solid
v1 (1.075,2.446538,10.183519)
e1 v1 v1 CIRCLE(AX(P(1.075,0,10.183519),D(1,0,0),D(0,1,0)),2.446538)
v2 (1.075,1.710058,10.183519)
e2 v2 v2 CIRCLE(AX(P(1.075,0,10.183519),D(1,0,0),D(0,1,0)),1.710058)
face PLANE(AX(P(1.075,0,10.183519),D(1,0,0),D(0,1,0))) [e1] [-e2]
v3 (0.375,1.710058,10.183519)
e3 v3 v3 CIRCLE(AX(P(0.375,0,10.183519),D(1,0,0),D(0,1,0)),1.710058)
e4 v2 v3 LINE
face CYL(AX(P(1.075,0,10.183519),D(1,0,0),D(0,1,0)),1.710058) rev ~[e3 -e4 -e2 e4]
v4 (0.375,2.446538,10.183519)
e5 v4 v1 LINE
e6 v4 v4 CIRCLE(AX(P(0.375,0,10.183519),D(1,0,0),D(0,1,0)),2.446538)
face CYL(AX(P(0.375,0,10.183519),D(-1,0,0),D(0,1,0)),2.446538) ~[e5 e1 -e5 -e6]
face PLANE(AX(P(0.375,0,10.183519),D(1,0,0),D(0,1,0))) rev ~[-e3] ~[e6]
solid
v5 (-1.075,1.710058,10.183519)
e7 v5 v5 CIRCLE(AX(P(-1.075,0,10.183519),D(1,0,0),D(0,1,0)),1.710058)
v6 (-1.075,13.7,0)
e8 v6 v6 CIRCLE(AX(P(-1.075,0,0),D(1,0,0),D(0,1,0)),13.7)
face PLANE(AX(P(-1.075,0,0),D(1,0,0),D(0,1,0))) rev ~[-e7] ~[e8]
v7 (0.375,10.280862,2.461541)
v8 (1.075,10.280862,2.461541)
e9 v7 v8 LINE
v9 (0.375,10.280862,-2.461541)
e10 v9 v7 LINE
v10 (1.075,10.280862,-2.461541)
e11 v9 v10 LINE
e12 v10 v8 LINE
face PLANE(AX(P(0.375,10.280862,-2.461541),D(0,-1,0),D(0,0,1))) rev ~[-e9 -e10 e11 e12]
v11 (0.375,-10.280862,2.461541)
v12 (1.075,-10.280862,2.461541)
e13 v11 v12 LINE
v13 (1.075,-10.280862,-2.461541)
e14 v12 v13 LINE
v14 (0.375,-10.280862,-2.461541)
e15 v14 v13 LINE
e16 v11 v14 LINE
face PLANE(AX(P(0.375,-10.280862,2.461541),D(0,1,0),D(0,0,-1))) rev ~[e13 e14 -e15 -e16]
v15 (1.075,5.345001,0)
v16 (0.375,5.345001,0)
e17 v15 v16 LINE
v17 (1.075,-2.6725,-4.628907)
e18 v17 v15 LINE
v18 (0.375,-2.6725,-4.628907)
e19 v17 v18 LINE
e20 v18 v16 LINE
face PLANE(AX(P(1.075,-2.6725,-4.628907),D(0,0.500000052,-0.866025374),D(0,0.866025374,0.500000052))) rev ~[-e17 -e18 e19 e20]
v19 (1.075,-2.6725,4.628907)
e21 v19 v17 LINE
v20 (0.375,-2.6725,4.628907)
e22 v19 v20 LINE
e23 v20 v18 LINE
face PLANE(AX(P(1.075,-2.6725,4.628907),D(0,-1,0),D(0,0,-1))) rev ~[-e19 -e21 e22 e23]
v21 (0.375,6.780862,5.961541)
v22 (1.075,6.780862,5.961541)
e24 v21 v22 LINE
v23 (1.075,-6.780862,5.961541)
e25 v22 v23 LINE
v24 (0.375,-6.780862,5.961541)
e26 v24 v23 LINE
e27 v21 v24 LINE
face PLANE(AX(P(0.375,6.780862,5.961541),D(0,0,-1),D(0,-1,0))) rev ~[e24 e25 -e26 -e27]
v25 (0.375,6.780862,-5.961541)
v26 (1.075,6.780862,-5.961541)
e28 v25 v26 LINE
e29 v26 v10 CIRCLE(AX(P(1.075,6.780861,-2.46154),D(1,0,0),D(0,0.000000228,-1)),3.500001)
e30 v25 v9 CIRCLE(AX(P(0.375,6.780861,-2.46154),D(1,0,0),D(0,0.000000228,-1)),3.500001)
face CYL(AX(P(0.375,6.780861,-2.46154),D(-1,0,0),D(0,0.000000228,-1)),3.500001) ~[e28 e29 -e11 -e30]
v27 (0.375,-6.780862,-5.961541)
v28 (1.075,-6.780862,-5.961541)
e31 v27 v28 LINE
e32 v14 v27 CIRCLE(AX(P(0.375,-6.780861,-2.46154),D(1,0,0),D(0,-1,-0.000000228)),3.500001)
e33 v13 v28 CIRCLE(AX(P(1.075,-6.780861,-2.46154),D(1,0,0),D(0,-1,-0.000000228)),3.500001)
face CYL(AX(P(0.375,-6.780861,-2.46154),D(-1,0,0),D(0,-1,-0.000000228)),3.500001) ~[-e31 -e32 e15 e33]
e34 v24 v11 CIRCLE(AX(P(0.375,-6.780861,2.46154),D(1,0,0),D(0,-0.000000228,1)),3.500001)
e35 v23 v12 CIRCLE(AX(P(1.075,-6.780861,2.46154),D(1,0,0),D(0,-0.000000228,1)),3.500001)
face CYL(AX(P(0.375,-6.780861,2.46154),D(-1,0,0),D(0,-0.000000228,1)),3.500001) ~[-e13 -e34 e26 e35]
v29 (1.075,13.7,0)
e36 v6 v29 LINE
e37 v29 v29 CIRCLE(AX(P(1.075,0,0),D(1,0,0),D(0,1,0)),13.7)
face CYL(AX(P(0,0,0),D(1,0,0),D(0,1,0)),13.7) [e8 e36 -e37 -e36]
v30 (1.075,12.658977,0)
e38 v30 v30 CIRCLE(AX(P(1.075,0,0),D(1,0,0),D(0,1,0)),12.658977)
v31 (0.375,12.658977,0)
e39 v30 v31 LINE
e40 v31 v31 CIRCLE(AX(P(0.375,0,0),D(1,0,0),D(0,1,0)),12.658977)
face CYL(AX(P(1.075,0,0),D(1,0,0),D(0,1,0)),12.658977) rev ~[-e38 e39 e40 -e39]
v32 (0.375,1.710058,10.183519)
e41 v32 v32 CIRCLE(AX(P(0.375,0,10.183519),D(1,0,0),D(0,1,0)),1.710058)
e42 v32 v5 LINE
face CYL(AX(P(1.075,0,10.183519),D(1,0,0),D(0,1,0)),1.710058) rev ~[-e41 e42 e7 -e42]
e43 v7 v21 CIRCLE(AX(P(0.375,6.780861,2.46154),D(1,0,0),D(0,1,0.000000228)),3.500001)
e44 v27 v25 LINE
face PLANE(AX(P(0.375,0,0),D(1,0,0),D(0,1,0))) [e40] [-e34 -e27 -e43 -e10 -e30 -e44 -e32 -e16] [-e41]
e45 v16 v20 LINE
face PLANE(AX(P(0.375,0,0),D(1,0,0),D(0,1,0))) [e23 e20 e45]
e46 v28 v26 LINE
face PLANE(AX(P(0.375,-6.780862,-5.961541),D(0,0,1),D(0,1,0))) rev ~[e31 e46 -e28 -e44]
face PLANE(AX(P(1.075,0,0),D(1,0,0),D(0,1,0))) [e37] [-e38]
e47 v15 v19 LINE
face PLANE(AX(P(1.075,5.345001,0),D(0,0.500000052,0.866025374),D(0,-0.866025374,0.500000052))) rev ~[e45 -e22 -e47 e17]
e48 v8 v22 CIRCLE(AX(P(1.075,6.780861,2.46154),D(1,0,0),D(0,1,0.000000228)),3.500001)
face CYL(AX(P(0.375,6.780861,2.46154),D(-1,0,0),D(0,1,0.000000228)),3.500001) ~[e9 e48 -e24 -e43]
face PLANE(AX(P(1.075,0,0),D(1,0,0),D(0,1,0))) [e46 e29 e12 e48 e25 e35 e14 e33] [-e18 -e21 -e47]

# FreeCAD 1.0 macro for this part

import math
import FreeCAD as App
import Part
import Sketcher
Q = App.Units.Quantity


def add_polygon(sketch, points):
    """Adds a closed chain of lines whose ends are joined by coincident constraints."""
    first, n = sketch.GeometryCount, len(points)
    for a, b in zip(points, points[1:] + points[:1]):
        sketch.addGeometry(Part.LineSegment(App.Vector(*a, 0), App.Vector(*b, 0)), False)
    for i in range(n):
        sketch.addConstraint(Sketcher.Constraint("Coincident", first + i, 2, first + (i + 1) % n, 1))

doc = App.newDocument("Part")
body = doc.addObject("PartDesign::Body", "Body")

# Sketch on YZ plane
sketch1 = body.newObject("Sketcher::SketchObject", "Sketch")
sketch1.AttachmentSupport = (doc.getObject("YZ_Plane"), [""])
sketch1.MapMode = "FlatFace"
sketch1.addGeometry(Part.Circle(App.Vector(0, 0, 0), App.Vector(0, 0, 1), 13.7), False)
sketch1.addConstraint([
    Sketcher.Constraint("Coincident", 0, 3, -1, 1),
    Sketcher.Constraint("Diameter", 0, 27.4),
])
pad1 = body.newObject("PartDesign::Pad", "Pad")
pad1.Profile = sketch1
pad1.Length = 2.15
pad1.Midplane = True

# Sketch on YZ plane
sketch2 = body.newObject("Sketcher::SketchObject", "Sketch001")
sketch2.AttachmentSupport = (doc.getObject("YZ_Plane"), [""])
sketch2.MapMode = "FlatFace"
sketch2.AttachmentOffset = App.Placement(App.Vector(0, 0, 1.075), App.Rotation())
sketch2.addGeometry(Part.Circle(App.Vector(0, 0, 0), App.Vector(0, 0, 1), 12.658977), False)
sketch2.addConstraint([
    Sketcher.Constraint("Coincident", 0, 3, -1, 1),
    Sketcher.Constraint("Diameter", 0, 25.317954),
])
pocket1 = body.newObject("PartDesign::Pocket", "Pocket")
pocket1.Profile = sketch2
pocket1.Length = 0.7
body2 = doc.addObject("PartDesign::Body", "Body001")

# Sketch on YZ plane
sketch3 = body2.newObject("Sketcher::SketchObject", "Sketch002")
sketch3.AttachmentSupport = (doc.getObject("YZ_Plane001"), [""])
sketch3.MapMode = "FlatFace"
sketch3.AttachmentOffset = App.Placement(App.Vector(0, 0, 0.375), App.Rotation())
sketch3.addGeometry(Part.Circle(App.Vector(0, 10.183519, 0), App.Vector(0, 0, 1), 2.446538), False)
sketch3.addConstraint([
    Sketcher.Constraint("PointOnObject", 0, 3, -2),
    Sketcher.Constraint("Diameter", 0, 4.893076),
    Sketcher.Constraint("DistanceY", -1, 1, 0, 3, 10.183519),
])
pad2 = body2.newObject("PartDesign::Pad", "Pad001")
pad2.Profile = sketch3
pad2.Length = 0.7
body3 = doc.addObject("PartDesign::Body", "Body002")

# Sketch on YZ plane
sketch4 = body3.newObject("Sketcher::SketchObject", "Sketch003")
sketch4.AttachmentSupport = (doc.getObject("YZ_Plane002"), [""])
sketch4.MapMode = "FlatFace"
sketch4.AttachmentOffset = App.Placement(App.Vector(0, 0, 1.075), App.Rotation())
sketch4.addGeometry(Part.Circle(App.Vector(0, 10.183519, 0), App.Vector(0, 0, 1), 1.710058), False)
sketch4.addConstraint([
    Sketcher.Constraint("PointOnObject", 0, 3, -2),
    Sketcher.Constraint("Diameter", 0, 3.420116),
    Sketcher.Constraint("DistanceY", -1, 1, 0, 3, 10.183519),
])
pad3 = body3.newObject("PartDesign::Pad", "Pad002")
pad3.Profile = sketch4
pad3.Length = 2.151
pad3.Reversed = True
doc.recompute()

body4 = doc.addObject("PartDesign::Body", "Body003")
body4.BaseFeature = body3
boolean = body.newObject("PartDesign::Boolean", "Boolean")
boolean.Type = "Cut"
boolean.addObjects([body4])
doc.recompute()

# Sketch on YZ plane
sketch5 = body.newObject("Sketcher::SketchObject", "Sketch004")
sketch5.AttachmentSupport = (doc.getObject("YZ_Plane"), [""])
sketch5.MapMode = "FlatFace"
sketch5.AttachmentOffset = App.Placement(App.Vector(0, 0, 0.375), App.Rotation())
sketch5.addGeometry([
    Part.LineSegment(App.Vector(6.780862, 5.961541, 0), App.Vector(-6.780862, 5.961541, 0)),  # 0
    Part.ArcOfCircle(Part.Circle(App.Vector(-6.780861, 2.46154, 0), App.Vector(0, 0, 1), 3.500001), math.radians(90.000013), math.radians(179.999987)),  # 1
    Part.LineSegment(App.Vector(-10.280862, 2.461541, 0), App.Vector(-10.280862, -2.461541, 0)),  # 2
    Part.ArcOfCircle(Part.Circle(App.Vector(-6.780861, -2.46154, 0), App.Vector(0, 0, 1), 3.500001), math.radians(-179.999987), math.radians(-90.000013)),  # 3
    Part.LineSegment(App.Vector(-6.780862, -5.961541, 0), App.Vector(6.780862, -5.961541, 0)),  # 4
    Part.ArcOfCircle(Part.Circle(App.Vector(6.780861, -2.46154, 0), App.Vector(0, 0, 1), 3.500001), math.radians(-89.999987), math.radians(-0.000013)),  # 5
    Part.LineSegment(App.Vector(10.280862, -2.461541, 0), App.Vector(10.280862, 2.461541, 0)),  # 6
    Part.ArcOfCircle(Part.Circle(App.Vector(6.780861, 2.46154, 0), App.Vector(0, 0, 1), 3.500001), math.radians(0.000013), math.radians(89.999987)),  # 7
], False)
sketch5.addConstraint([
    Sketcher.Constraint("Tangent", 0, 2, 1, 1),
    Sketcher.Constraint("Tangent", 1, 2, 2, 1),
    Sketcher.Constraint("Tangent", 2, 2, 3, 1),
    Sketcher.Constraint("Tangent", 3, 2, 4, 1),
    Sketcher.Constraint("Tangent", 4, 2, 5, 1),
    Sketcher.Constraint("Tangent", 5, 2, 6, 1),
    Sketcher.Constraint("Tangent", 6, 2, 7, 1),
    Sketcher.Constraint("Tangent", 7, 2, 0, 1),
    Sketcher.Constraint("Horizontal", 0),
    Sketcher.Constraint("Vertical", 2),
    Sketcher.Constraint("Horizontal", 4),
    Sketcher.Constraint("Vertical", 6),
    Sketcher.Constraint("Equal", 1, 3),
    Sketcher.Constraint("Equal", 3, 5),
    Sketcher.Constraint("Equal", 5, 7),
    Sketcher.Constraint("Symmetric", 1, 3, 5, 3, -1, 1),
    Sketcher.Constraint("Radius", 1, 3.500001),
    Sketcher.Constraint("DistanceX", 0, 2, 0, 1, 13.561724),
    Sketcher.Constraint("DistanceY", 2, 2, 2, 1, 4.923082),
])
pad4 = body.newObject("PartDesign::Pad", "Pad003")
pad4.Profile = sketch5
pad4.Length = 0.7

# Sketch on YZ plane
sketch6 = body.newObject("Sketcher::SketchObject", "Sketch005")
sketch6.AttachmentSupport = (doc.getObject("YZ_Plane"), [""])
sketch6.MapMode = "FlatFace"
sketch6.AttachmentOffset = App.Placement(App.Vector(0, 0, 1.075), App.Rotation())
add_polygon(sketch6, [(-2.6725, 4.628907), (-2.6725, -4.628907), (5.345001, 0)])  # lines 0-2
sketch6.addConstraint([
    Sketcher.Constraint("Vertical", 0),
    Sketcher.Constraint("PointOnObject", 1, 2, -1),
    Sketcher.Constraint("Equal", 1, 2),
    Sketcher.Constraint("Angle", 1, Q("30.000003 deg")),
    Sketcher.Constraint("DistanceX", -1, 1, 1, 2, 5.345001),
    Sketcher.Constraint("DistanceX", 0, 2, -1, 1, 2.6725),
])
pocket2 = body.newObject("PartDesign::Pocket", "Pocket001")
pocket2.Profile = sketch6
pocket2.Length = 0.7
doc.recompute()

boolean2 = body2.newObject("PartDesign::Boolean", "Boolean001")
boolean2.Type = "Cut"
boolean2.addObjects([body3])

doc.recompute()
